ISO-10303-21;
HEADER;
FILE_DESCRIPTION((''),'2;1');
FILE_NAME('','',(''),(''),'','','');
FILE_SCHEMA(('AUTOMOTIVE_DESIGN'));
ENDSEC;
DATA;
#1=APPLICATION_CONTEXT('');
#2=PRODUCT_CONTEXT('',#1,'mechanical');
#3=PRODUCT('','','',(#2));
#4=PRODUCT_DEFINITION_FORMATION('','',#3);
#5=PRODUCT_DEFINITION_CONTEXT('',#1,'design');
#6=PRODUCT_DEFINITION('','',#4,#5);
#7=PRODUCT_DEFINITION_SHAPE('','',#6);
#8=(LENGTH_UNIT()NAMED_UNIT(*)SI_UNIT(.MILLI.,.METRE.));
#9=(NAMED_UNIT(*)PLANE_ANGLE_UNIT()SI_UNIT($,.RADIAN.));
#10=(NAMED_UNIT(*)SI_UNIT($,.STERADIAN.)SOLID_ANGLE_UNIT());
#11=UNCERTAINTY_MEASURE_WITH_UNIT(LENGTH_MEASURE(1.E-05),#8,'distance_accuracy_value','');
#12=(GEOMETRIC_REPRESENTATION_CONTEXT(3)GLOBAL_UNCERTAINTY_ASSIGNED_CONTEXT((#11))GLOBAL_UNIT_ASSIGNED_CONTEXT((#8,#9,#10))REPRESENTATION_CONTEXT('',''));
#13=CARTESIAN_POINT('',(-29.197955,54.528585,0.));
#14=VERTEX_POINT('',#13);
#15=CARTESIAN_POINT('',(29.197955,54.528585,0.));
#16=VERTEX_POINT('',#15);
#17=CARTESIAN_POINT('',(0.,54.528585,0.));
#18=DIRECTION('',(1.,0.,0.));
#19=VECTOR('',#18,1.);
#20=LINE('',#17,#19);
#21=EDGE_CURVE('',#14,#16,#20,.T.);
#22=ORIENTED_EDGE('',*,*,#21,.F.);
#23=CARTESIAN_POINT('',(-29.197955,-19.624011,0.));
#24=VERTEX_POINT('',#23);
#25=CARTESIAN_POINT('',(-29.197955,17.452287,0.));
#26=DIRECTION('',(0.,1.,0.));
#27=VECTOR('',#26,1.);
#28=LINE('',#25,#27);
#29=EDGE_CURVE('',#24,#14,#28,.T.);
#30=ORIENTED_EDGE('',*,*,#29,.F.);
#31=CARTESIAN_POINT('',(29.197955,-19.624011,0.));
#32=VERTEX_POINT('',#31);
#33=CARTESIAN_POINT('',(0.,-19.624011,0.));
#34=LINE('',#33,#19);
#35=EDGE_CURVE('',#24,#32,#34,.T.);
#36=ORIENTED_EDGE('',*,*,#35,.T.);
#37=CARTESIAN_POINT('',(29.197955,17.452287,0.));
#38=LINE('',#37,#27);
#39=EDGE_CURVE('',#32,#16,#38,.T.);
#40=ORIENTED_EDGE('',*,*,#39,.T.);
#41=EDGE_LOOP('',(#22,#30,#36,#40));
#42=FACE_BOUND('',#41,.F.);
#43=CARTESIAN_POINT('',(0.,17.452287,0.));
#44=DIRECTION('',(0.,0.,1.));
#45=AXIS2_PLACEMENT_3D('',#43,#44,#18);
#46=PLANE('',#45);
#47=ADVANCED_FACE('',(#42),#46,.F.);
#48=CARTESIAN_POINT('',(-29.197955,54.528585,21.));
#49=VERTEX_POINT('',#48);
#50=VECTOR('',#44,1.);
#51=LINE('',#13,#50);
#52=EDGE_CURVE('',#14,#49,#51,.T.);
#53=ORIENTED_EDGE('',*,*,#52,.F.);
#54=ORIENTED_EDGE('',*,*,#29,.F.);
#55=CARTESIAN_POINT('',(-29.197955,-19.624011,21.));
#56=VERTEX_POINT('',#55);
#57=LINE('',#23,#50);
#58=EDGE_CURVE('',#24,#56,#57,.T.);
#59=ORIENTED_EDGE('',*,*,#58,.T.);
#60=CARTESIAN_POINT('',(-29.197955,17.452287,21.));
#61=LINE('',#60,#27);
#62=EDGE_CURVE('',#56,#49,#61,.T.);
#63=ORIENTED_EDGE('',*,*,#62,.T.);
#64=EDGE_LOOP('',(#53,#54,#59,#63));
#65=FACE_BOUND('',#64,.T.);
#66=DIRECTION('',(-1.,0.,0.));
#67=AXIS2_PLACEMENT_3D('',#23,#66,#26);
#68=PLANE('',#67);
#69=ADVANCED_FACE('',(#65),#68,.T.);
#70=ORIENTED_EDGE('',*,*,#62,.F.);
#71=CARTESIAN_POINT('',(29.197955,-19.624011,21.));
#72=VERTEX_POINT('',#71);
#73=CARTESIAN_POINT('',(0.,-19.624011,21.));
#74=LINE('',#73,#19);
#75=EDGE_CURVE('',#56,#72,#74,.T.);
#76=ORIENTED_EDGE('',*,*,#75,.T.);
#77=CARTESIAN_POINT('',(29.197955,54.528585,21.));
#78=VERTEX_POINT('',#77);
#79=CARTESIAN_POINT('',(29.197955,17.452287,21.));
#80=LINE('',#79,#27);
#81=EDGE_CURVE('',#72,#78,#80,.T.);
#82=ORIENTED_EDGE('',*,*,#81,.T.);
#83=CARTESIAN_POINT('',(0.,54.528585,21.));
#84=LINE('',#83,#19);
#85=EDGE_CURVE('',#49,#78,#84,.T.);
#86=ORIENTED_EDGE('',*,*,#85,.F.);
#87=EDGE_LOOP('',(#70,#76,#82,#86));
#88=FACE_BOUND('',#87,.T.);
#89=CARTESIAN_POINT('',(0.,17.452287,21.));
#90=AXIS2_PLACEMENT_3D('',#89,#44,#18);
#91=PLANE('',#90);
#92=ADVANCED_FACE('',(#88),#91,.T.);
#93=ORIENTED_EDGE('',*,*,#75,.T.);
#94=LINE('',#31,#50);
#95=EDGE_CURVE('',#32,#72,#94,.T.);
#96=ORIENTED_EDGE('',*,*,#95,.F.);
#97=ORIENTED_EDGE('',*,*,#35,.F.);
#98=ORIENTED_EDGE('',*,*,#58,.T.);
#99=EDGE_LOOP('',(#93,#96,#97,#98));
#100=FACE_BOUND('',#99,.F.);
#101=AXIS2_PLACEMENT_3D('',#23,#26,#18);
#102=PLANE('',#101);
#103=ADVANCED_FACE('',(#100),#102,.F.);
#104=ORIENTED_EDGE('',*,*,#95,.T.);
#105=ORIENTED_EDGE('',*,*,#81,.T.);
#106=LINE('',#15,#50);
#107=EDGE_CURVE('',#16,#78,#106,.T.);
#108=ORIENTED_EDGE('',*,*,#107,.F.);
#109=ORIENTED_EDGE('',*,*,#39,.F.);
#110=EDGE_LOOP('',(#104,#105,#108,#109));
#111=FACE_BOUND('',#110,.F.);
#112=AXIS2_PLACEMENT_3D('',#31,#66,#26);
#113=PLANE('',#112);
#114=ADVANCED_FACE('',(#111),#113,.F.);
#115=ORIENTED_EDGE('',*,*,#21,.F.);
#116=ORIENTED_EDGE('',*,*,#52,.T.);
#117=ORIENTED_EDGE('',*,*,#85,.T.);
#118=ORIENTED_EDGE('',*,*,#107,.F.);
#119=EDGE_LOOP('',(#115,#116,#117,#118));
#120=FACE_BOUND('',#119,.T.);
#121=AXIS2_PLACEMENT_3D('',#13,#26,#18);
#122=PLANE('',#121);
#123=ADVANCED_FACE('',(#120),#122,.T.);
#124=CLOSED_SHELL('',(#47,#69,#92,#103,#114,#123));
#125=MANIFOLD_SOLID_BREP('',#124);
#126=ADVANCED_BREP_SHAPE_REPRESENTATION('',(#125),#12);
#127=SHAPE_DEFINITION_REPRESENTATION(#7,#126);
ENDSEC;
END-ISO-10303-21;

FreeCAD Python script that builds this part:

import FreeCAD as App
import Part
import Sketcher


def add_polygon(sketch, points):
    """Adds a closed chain of lines whose ends are joined by coincident constraints."""
    first, n = sketch.GeometryCount, len(points)
    for a, b in zip(points, points[1:] + points[:1]):
        sketch.addGeometry(Part.LineSegment(App.Vector(*a, 0), App.Vector(*b, 0)), False)
    for i in range(n):
        sketch.addConstraint(Sketcher.Constraint("Coincident", first + i, 2, first + (i + 1) % n, 1))

doc = App.newDocument("Part")
body = doc.addObject("PartDesign::Body", "Body")

# Sketch on XY plane
sketch1 = body.newObject("Sketcher::SketchObject", "Sketch")
sketch1.AttachmentSupport = (doc.getObject("XY_Plane"), [""])
sketch1.MapMode = "FlatFace"
add_polygon(sketch1, [(-29.197955, 54.528585), (-29.197955, -19.624011), (29.197955, -19.624011), (29.197955, 54.528585)])  # lines 0-3
sketch1.addConstraint([
    Sketcher.Constraint("Vertical", 0),
    Sketcher.Constraint("Horizontal", 1),
    Sketcher.Constraint("Vertical", 2),
    Sketcher.Constraint("Horizontal", 3),
    Sketcher.Constraint("DistanceX", 1, 1, 1, 2, 58.39591),
    Sketcher.Constraint("DistanceY", 0, 2, 0, 1, 74.152596),
    Sketcher.Constraint("DistanceY", 0, 2, -1, 1, 19.624011),
    Sketcher.Constraint("DistanceX", 0, 2, -1, 1, 29.197955),
])
pad1 = body.newObject("PartDesign::Pad", "Pad")
pad1.Profile = sketch1
pad1.Length = 21

doc.recompute()
